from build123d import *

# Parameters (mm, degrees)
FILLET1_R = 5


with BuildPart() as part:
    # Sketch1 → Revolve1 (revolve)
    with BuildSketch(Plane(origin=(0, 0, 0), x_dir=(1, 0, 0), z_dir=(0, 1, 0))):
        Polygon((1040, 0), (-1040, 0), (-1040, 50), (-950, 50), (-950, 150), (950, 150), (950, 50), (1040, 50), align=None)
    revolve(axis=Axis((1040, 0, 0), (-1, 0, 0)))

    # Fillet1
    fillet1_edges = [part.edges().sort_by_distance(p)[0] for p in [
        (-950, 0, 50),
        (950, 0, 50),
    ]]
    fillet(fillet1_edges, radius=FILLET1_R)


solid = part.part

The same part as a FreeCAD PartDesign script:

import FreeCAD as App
import Part
import Sketcher
from FreeCAD import Vector
Q = App.Units.Quantity


def edges_at(feature, points):
    """Names of the edges that pass closest to the given points."""
    edges = feature.Shape.Edges
    near = lambda p: min(range(len(edges)), key=lambda i: edges[i].distToShape(Part.Vertex(*p))[0])
    return sorted({f"Edge{near(p) + 1}" for p in points})

doc = App.newDocument("Part")
body = doc.addObject("PartDesign::Body", "Body")

sketch1 = body.newObject("Sketcher::SketchObject", "Sketch")
sketch1.AttachmentSupport = (doc.getObject("XZ_Plane"), [""])
sketch1.MapMode = "FlatFace"
sketch1.addGeometry([
    Part.LineSegment(Vector(-1040, 0, 0), Vector(1040, 0, 0)),
    Part.LineSegment(Vector(1040, 0, 0), Vector(1040, -50, 0)),
    Part.LineSegment(Vector(1040, -50, 0), Vector(950, -50, 0)),
    Part.LineSegment(Vector(950, -50, 0), Vector(950, -150, 0)),
    Part.LineSegment(Vector(950, -150, 0), Vector(-950, -150, 0)),
    Part.LineSegment(Vector(-950, -150, 0), Vector(-950, -50, 0)),
    Part.LineSegment(Vector(-950, -50, 0), Vector(-1040, -50, 0)),
    Part.LineSegment(Vector(-1040, -50, 0), Vector(-1040, 0, 0)),
], False)
sketch1.addConstraint([
    Sketcher.Constraint("Coincident", 0, 2, 1, 1),
    Sketcher.Constraint("Coincident", 1, 2, 2, 1),
    Sketcher.Constraint("Coincident", 2, 2, 3, 1),
    Sketcher.Constraint("Coincident", 3, 2, 4, 1),
    Sketcher.Constraint("Coincident", 4, 2, 5, 1),
    Sketcher.Constraint("Coincident", 5, 2, 6, 1),
    Sketcher.Constraint("Coincident", 6, 2, 7, 1),
    Sketcher.Constraint("Coincident", 7, 2, 0, 1),
    Sketcher.Constraint("Horizontal", 0),
    Sketcher.Constraint("Vertical", 1),
    Sketcher.Constraint("Horizontal", 2),
    Sketcher.Constraint("Vertical", 3),
    Sketcher.Constraint("Horizontal", 4),
    Sketcher.Constraint("Vertical", 5),
    Sketcher.Constraint("Horizontal", 6),
    Sketcher.Constraint("Vertical", 7),
    Sketcher.Constraint("Symmetric", 0, 2, 7, 2, -1, 1),
    Sketcher.Constraint("Symmetric", 2, 2, 5, 2, -2),
    Sketcher.Constraint("DistanceX", 0, 1, 0, 2, Q("2080 mm")),
    Sketcher.Constraint("DistanceX", 2, 2, 2, 1, Q("90 mm")),
    Sketcher.Constraint("DistanceY", 1, 2, 1, 1, Q("50 mm")),
    Sketcher.Constraint("DistanceY", 3, 2, 3, 1, Q("100 mm")),
])
revolution = body.newObject("PartDesign::Revolution", "Revolution")
revolution.Profile = sketch1
revolution.ReferenceAxis = (sketch1, ["H_Axis"])
revolution.Angle = 360
doc.recompute()

fillet = body.newObject("PartDesign::Fillet", "Fillet")
fillet.Base = (revolution, edges_at(revolution, [(-950, 0, 50), (950, 0, 50)]))
fillet.Radius = 5

doc.recompute()
